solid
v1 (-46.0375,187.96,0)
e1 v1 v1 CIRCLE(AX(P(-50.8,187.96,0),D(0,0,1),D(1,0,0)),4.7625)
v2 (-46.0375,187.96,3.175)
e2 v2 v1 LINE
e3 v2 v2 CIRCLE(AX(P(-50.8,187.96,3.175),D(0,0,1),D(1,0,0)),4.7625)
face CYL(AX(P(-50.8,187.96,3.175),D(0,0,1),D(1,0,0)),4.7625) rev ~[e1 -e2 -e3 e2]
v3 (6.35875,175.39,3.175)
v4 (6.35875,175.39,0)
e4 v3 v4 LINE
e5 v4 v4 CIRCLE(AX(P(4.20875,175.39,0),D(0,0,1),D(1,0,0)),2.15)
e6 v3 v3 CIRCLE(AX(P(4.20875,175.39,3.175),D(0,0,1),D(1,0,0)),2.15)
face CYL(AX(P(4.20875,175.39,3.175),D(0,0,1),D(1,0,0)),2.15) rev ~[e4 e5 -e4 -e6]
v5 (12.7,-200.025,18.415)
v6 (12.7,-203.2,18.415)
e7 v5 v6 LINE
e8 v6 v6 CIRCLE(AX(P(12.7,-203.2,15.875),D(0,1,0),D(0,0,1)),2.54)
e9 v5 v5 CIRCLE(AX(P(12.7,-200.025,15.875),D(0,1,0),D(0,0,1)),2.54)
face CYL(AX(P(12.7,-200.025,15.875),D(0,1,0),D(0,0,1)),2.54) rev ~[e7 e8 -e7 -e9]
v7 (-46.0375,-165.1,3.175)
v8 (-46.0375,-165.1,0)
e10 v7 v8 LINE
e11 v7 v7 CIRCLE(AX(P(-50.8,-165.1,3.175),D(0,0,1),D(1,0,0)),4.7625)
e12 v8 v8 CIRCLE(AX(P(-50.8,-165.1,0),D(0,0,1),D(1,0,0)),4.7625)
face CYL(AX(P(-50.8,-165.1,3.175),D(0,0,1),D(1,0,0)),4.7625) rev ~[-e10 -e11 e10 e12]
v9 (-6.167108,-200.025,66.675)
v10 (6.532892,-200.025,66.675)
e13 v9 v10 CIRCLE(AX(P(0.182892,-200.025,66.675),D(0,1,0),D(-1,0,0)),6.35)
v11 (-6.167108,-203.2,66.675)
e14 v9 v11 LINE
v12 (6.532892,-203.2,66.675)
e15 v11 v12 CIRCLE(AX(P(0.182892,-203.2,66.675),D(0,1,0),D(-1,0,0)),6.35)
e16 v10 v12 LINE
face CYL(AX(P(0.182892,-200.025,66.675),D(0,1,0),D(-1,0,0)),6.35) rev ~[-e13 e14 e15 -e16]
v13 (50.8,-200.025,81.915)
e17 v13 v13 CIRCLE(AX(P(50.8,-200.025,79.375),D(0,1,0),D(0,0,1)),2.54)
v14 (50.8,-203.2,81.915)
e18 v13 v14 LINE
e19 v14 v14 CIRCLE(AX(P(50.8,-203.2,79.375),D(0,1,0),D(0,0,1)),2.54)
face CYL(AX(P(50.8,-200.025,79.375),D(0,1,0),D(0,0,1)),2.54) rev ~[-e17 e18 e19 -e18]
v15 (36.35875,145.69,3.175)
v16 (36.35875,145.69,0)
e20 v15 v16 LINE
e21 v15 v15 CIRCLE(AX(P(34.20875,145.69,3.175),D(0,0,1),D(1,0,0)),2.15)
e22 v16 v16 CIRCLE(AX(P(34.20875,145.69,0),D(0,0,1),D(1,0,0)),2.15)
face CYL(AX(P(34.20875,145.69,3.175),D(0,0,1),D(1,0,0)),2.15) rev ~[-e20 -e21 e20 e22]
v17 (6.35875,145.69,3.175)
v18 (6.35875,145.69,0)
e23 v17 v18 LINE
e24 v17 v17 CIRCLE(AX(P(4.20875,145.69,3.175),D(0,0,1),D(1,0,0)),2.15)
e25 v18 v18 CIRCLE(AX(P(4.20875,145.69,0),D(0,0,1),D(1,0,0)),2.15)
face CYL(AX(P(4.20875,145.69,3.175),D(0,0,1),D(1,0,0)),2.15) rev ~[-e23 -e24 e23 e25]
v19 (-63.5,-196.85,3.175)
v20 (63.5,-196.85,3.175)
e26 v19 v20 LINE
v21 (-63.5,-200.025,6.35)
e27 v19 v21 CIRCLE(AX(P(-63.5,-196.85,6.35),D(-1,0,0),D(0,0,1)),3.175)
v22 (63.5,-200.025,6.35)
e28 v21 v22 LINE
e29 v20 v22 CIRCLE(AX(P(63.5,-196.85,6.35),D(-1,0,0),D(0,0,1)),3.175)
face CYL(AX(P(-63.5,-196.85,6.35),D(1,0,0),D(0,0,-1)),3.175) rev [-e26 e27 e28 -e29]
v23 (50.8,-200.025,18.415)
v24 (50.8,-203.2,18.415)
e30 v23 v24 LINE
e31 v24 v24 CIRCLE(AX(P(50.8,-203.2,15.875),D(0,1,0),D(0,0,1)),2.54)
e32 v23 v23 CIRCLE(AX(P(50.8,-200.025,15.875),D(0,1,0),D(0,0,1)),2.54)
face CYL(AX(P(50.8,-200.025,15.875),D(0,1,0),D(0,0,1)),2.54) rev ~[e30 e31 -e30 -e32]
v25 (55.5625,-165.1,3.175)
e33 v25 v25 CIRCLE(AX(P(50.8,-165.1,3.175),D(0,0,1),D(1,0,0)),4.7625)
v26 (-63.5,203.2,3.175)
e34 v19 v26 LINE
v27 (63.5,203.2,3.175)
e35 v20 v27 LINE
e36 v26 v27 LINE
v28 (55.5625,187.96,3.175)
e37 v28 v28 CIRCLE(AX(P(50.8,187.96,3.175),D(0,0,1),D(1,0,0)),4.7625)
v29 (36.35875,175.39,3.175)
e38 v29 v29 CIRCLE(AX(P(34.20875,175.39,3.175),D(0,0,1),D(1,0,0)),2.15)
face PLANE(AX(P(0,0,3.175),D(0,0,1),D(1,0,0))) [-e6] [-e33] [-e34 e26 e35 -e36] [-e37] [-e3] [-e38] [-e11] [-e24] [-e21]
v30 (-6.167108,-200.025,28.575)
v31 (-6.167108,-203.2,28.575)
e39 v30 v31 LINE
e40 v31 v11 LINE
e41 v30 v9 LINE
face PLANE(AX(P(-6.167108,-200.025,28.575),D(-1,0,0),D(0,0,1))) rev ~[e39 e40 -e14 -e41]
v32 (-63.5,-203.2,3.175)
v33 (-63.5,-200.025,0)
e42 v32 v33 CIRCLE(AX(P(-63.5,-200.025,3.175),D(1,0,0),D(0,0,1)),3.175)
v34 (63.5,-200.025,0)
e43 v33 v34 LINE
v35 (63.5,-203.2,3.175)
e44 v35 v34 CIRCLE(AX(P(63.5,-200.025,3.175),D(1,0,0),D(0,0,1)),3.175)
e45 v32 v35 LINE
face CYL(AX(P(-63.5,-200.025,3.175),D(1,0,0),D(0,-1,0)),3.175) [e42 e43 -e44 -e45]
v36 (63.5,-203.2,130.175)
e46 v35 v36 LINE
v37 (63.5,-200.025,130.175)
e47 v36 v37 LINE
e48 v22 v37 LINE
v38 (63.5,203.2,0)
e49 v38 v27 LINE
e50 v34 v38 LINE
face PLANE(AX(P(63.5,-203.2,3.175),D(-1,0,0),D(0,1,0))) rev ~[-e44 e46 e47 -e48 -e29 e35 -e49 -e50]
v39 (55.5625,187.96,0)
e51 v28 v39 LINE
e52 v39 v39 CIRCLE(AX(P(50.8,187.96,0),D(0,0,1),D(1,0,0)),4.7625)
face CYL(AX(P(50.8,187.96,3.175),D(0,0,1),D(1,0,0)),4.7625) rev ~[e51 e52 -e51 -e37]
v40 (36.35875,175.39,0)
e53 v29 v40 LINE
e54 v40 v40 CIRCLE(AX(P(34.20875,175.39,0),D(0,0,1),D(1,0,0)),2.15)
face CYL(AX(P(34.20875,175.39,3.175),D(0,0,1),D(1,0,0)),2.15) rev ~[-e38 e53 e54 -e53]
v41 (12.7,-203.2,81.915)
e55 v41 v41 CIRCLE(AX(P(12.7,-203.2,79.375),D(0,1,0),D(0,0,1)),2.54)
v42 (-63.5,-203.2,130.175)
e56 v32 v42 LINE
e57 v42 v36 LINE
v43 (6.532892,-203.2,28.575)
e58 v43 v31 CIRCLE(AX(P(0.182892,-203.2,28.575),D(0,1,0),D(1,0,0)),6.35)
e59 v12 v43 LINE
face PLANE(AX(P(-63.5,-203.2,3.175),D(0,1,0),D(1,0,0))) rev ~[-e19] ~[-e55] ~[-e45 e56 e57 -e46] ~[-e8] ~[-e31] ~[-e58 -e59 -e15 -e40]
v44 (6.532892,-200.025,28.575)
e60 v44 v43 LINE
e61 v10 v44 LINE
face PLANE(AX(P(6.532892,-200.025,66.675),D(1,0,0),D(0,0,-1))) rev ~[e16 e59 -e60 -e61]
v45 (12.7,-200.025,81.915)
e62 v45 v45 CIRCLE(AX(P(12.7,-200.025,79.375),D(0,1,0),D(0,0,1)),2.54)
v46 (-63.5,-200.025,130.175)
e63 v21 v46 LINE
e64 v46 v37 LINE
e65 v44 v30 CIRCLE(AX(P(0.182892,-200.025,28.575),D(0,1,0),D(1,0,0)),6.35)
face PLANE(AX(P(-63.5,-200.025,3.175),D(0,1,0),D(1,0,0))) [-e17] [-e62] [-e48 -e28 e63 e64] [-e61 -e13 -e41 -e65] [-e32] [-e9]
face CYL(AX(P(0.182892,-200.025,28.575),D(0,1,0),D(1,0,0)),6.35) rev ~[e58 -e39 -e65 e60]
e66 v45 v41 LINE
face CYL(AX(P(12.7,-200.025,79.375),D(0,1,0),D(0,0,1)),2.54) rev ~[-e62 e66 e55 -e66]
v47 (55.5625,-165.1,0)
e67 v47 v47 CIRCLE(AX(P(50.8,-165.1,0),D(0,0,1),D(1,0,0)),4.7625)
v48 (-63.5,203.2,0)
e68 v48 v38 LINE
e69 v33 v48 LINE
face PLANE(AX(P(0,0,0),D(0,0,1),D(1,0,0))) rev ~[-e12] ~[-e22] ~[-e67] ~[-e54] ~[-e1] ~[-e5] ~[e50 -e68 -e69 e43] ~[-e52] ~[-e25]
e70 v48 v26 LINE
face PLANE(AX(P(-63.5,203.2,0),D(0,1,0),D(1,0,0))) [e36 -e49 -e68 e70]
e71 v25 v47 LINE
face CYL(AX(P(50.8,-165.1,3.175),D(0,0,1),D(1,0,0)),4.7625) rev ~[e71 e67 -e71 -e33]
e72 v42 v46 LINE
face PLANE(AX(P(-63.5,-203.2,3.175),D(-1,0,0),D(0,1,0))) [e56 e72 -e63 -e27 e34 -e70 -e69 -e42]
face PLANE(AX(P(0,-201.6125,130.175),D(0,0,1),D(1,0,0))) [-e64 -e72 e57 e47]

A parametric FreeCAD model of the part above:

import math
import FreeCAD as App
import Part
import Sketcher
Q = App.Units.Quantity


def edges_at(feature, points):
    """Names of the edges that pass closest to the given points."""
    edges = feature.Shape.Edges
    near = lambda p: min(range(len(edges)), key=lambda i: edges[i].distToShape(Part.Vertex(*p))[0])
    return sorted({f"Edge{near(p) + 1}" for p in points})

doc = App.newDocument("Part")
body = doc.addObject("PartDesign::Body", "Body")

# Sketch on XY plane
sketch1 = body.newObject("Sketcher::SketchObject", "Sketch")
sketch1.AttachmentSupport = (doc.getObject("XY_Plane"), [""])
sketch1.MapMode = "FlatFace"
sketch1.addGeometry([
    Part.LineSegment(App.Vector(-64, 203, 0), App.Vector(-64, -203, 0)),
    Part.LineSegment(App.Vector(-64, -203, 0), App.Vector(64, -203, 0)),
    Part.LineSegment(App.Vector(64, -203, 0), App.Vector(64, 203, 0)),
    Part.LineSegment(App.Vector(64, 203, 0), App.Vector(-64, 203, 0)),
], False)
sketch1.addConstraint([
    Sketcher.Constraint("Coincident", 0, 2, 1, 1),
    Sketcher.Constraint("Coincident", 1, 2, 2, 1),
    Sketcher.Constraint("Coincident", 2, 2, 3, 1),
    Sketcher.Constraint("Coincident", 3, 2, 0, 1),
    Sketcher.Constraint("Vertical", 0),
    Sketcher.Constraint("Horizontal", 1),
    Sketcher.Constraint("Vertical", 2),
    Sketcher.Constraint("Horizontal", 3),
    Sketcher.Constraint("Symmetric", 0, 2, 2, 2, -1, 1),
    Sketcher.Constraint("DistanceX", 1, 1, 1, 2, Q("5 in")),
    Sketcher.Constraint("DistanceY", 0, 2, 0, 1, Q("16 in")),
])
pad1 = body.newObject("PartDesign::Pad", "Pad")
pad1.Profile = sketch1
pad1.Length = Q("0.125 in")

# Sketch on XY plane
sketch2 = body.newObject("Sketcher::SketchObject", "Sketch001")
sketch2.AttachmentSupport = (doc.getObject("XY_Plane"), [""])
sketch2.MapMode = "FlatFace"
sketch2.AttachmentOffset = App.Placement(App.Vector(0, 0, 0.125 * 25.4), App.Rotation())
sketch2.addGeometry([
    Part.LineSegment(App.Vector(-63.5, -200, 0), App.Vector(-63.5, -203.2, 0)),
    Part.LineSegment(App.Vector(-63.5, -203.2, 0), App.Vector(63.5, -203.2, 0)),
    Part.LineSegment(App.Vector(63.5, -203.2, 0), App.Vector(63.5, -200, 0)),
    Part.LineSegment(App.Vector(63.5, -200, 0), App.Vector(-63.5, -200, 0)),
], False)
sketch2.addConstraint([
    Sketcher.Constraint("Coincident", 0, 2, 1, 1),
    Sketcher.Constraint("Coincident", 1, 2, 2, 1),
    Sketcher.Constraint("Coincident", 2, 2, 3, 1),
    Sketcher.Constraint("Coincident", 3, 2, 0, 1),
    Sketcher.Constraint("Vertical", 0),
    Sketcher.Constraint("Horizontal", 1),
    Sketcher.Constraint("Vertical", 2),
    Sketcher.Constraint("Horizontal", 3),
    Sketcher.Constraint("DistanceX", 1, 1, 1, 2, Q("5 in")),
    Sketcher.Constraint("DistanceY", 0, 2, -1, 1, Q("8 in")),
    Sketcher.Constraint("DistanceX", 0, 2, -1, 1, Q("2.5 in")),
    Sketcher.Constraint("DistanceY", 0, 2, 0, 1, Q("0.125 in")),
])
pad2 = body.newObject("PartDesign::Pad", "Pad001")
pad2.Profile = sketch2
pad2.Length = Q("5 in")
doc.recompute()

fillet = body.newObject("PartDesign::Fillet", "Fillet")
fillet.Base = (pad2, edges_at(pad2, [(0, -200.025, 3.175), (0, -203.2, 0)]))
fillet.Radius = Q("0.125 in")

# Sketch on XZ plane
sketch3 = body.newObject("Sketcher::SketchObject", "Sketch002")
sketch3.AttachmentSupport = (doc.getObject("XZ_Plane"), [""])
sketch3.MapMode = "FlatFace"
sketch3.AttachmentOffset = App.Placement(App.Vector(0, 0, 7.875 * 25.4), App.Rotation())
sketch3.addGeometry([
    Part.ArcOfCircle(Part.Circle(App.Vector(0.2, 66.7, 0), App.Vector(0, 0, 1), 6.3), math.radians(0), math.radians(180)),  # 0
    Part.LineSegment(App.Vector(6.5, 66.7, 0), App.Vector(6.5, 28.6, 0)),  # 1
    Part.ArcOfCircle(Part.Circle(App.Vector(0.2, 28.6, 0), App.Vector(0, 0, 1), 6.3), math.radians(180), math.radians(360)),  # 2
    Part.LineSegment(App.Vector(-6.2, 28.6, 0), App.Vector(-6.2, 66.7, 0)),  # 3
    Part.Circle(App.Vector(12.7, 79.4, 0), App.Vector(0, 0, 1), 2.5),  # 4
    Part.Circle(App.Vector(50.8, 79.4, 0), App.Vector(0, 0, 1), 2.5),  # 5
    Part.Circle(App.Vector(50.8, 15.9, 0), App.Vector(0, 0, 1), 2.5),  # 6
    Part.Circle(App.Vector(12.7, 15.9, 0), App.Vector(0, 0, 1), 2.5),  # 7
], False)
sketch3.addConstraint([
    Sketcher.Constraint("Tangent", 0, 1, 1, 1),
    Sketcher.Constraint("Tangent", 1, 2, 2, 2),
    Sketcher.Constraint("Tangent", 2, 1, 3, 1),
    Sketcher.Constraint("Tangent", 3, 2, 0, 2),
    Sketcher.Constraint("Vertical", 1),
    Sketcher.Constraint("Vertical", 3),
    Sketcher.Constraint("Equal", 4, 5),
    Sketcher.Constraint("Equal", 5, 6),
    Sketcher.Constraint("Equal", 6, 7),
    Sketcher.Constraint("Horizontal", 4, 3, 5, 3),
    Sketcher.Constraint("Horizontal", 6, 3, 7, 3),
    Sketcher.Constraint("Vertical", 5, 3, 6, 3),
    Sketcher.Constraint("Vertical", 4, 3, 7, 3),
    Sketcher.Constraint("Diameter", 4, Q("0.2 in")),
    Sketcher.Constraint("Radius", 0, Q("0.25 in")),
    Sketcher.Constraint("DistanceY", 1, 2, 1, 1, Q("1.5 in")),
    Sketcher.Constraint("DistanceX", -1, 1, 5, 3, Q("2 in")),
    Sketcher.Constraint("DistanceY", 2, 3, 4, 3, Q("2 in")),
    Sketcher.Constraint("DistanceY", 6, 3, 0, 3, Q("2 in")),
    Sketcher.Constraint("DistanceX", -1, 1, 4, 3, Q("0.5 in")),
    Sketcher.Constraint("DistanceY", -1, 1, 0, 3, Q("2.625 in")),
    Sketcher.Constraint("DistanceX", -1, 1, 0, 3, Q("0.182892 mm")),
])
pocket1 = body.newObject("PartDesign::Pocket", "Pocket")
pocket1.Profile = sketch3
pocket1.Type = "ThroughAll"
pocket1.Reversed = True

# Sketch on XY plane
sketch4 = body.newObject("Sketcher::SketchObject", "Sketch003")
sketch4.AttachmentSupport = (doc.getObject("XY_Plane"), [""])
sketch4.MapMode = "FlatFace"
sketch4.AttachmentOffset = App.Placement(App.Vector(0, 0, 0.125 * 25.4), App.Rotation())
sketch4.addGeometry([
    Part.Circle(App.Vector(-50.8, 188, 0), App.Vector(0, 0, 1), 4.8),  # 0
    Part.Circle(App.Vector(50.8, 188, 0), App.Vector(0, 0, 1), 4.8),  # 1
    Part.Circle(App.Vector(-50.8, -165.1, 0), App.Vector(0, 0, 1), 4.8),  # 2
    Part.Circle(App.Vector(50.8, -165.1, 0), App.Vector(0, 0, 1), 4.8),  # 3
    Part.Circle(App.Vector(34.2, 175.4, 0), App.Vector(0, 0, 1), 2.1),  # 4
    Part.Circle(App.Vector(4.2, 175.4, 0), App.Vector(0, 0, 1), 2.1),  # 5
    Part.Circle(App.Vector(4.2, 145.7, 0), App.Vector(0, 0, 1), 2.1),  # 6
    Part.Circle(App.Vector(34.2, 145.7, 0), App.Vector(0, 0, 1), 2.1),  # 7
], False)
sketch4.addConstraint([
    Sketcher.Constraint("Equal", 0, 1),
    Sketcher.Constraint("Equal", 1, 2),
    Sketcher.Constraint("Equal", 2, 3),
    Sketcher.Constraint("Equal", 4, 5),
    Sketcher.Constraint("Equal", 5, 6),
    Sketcher.Constraint("Equal", 6, 7),
    Sketcher.Constraint("Symmetric", 0, 3, 1, 3, -2),
    Sketcher.Constraint("Symmetric", 2, 3, 3, 3, -2),
    Sketcher.Constraint("Horizontal", 4, 3, 5, 3),
    Sketcher.Constraint("Horizontal", 6, 3, 7, 3),
    Sketcher.Constraint("Vertical", 0, 3, 2, 3),
    Sketcher.Constraint("Vertical", 5, 3, 6, 3),
    Sketcher.Constraint("Vertical", 4, 3, 7, 3),
    Sketcher.Constraint("Diameter", 0, Q("0.375 in")),
    Sketcher.Constraint("DistanceX", 0, 3, -1, 1, Q("2 in")),
    Sketcher.Constraint("DistanceY", -1, 1, 0, 3, Q("7.4 in")),
    Sketcher.Constraint("DistanceY", 2, 3, -1, 1, Q("6.5 in")),
    Sketcher.Constraint("Diameter", 4, Q("4.3 mm")),
    Sketcher.Constraint("DistanceY", -1, 1, 4, 3, Q("175.39 mm")),
    Sketcher.Constraint("DistanceY", -1, 1, 6, 3, Q("145.69 mm")),
    Sketcher.Constraint("DistanceX", 5, 3, 4, 3, Q("30 mm")),
    Sketcher.Constraint("DistanceX", -1, 1, 4, 3, Q("34.20875 mm")),
])
pocket2 = body.newObject("PartDesign::Pocket", "Pocket001")
pocket2.Profile = sketch4
pocket2.Type = "ThroughAll"

doc.recompute()
